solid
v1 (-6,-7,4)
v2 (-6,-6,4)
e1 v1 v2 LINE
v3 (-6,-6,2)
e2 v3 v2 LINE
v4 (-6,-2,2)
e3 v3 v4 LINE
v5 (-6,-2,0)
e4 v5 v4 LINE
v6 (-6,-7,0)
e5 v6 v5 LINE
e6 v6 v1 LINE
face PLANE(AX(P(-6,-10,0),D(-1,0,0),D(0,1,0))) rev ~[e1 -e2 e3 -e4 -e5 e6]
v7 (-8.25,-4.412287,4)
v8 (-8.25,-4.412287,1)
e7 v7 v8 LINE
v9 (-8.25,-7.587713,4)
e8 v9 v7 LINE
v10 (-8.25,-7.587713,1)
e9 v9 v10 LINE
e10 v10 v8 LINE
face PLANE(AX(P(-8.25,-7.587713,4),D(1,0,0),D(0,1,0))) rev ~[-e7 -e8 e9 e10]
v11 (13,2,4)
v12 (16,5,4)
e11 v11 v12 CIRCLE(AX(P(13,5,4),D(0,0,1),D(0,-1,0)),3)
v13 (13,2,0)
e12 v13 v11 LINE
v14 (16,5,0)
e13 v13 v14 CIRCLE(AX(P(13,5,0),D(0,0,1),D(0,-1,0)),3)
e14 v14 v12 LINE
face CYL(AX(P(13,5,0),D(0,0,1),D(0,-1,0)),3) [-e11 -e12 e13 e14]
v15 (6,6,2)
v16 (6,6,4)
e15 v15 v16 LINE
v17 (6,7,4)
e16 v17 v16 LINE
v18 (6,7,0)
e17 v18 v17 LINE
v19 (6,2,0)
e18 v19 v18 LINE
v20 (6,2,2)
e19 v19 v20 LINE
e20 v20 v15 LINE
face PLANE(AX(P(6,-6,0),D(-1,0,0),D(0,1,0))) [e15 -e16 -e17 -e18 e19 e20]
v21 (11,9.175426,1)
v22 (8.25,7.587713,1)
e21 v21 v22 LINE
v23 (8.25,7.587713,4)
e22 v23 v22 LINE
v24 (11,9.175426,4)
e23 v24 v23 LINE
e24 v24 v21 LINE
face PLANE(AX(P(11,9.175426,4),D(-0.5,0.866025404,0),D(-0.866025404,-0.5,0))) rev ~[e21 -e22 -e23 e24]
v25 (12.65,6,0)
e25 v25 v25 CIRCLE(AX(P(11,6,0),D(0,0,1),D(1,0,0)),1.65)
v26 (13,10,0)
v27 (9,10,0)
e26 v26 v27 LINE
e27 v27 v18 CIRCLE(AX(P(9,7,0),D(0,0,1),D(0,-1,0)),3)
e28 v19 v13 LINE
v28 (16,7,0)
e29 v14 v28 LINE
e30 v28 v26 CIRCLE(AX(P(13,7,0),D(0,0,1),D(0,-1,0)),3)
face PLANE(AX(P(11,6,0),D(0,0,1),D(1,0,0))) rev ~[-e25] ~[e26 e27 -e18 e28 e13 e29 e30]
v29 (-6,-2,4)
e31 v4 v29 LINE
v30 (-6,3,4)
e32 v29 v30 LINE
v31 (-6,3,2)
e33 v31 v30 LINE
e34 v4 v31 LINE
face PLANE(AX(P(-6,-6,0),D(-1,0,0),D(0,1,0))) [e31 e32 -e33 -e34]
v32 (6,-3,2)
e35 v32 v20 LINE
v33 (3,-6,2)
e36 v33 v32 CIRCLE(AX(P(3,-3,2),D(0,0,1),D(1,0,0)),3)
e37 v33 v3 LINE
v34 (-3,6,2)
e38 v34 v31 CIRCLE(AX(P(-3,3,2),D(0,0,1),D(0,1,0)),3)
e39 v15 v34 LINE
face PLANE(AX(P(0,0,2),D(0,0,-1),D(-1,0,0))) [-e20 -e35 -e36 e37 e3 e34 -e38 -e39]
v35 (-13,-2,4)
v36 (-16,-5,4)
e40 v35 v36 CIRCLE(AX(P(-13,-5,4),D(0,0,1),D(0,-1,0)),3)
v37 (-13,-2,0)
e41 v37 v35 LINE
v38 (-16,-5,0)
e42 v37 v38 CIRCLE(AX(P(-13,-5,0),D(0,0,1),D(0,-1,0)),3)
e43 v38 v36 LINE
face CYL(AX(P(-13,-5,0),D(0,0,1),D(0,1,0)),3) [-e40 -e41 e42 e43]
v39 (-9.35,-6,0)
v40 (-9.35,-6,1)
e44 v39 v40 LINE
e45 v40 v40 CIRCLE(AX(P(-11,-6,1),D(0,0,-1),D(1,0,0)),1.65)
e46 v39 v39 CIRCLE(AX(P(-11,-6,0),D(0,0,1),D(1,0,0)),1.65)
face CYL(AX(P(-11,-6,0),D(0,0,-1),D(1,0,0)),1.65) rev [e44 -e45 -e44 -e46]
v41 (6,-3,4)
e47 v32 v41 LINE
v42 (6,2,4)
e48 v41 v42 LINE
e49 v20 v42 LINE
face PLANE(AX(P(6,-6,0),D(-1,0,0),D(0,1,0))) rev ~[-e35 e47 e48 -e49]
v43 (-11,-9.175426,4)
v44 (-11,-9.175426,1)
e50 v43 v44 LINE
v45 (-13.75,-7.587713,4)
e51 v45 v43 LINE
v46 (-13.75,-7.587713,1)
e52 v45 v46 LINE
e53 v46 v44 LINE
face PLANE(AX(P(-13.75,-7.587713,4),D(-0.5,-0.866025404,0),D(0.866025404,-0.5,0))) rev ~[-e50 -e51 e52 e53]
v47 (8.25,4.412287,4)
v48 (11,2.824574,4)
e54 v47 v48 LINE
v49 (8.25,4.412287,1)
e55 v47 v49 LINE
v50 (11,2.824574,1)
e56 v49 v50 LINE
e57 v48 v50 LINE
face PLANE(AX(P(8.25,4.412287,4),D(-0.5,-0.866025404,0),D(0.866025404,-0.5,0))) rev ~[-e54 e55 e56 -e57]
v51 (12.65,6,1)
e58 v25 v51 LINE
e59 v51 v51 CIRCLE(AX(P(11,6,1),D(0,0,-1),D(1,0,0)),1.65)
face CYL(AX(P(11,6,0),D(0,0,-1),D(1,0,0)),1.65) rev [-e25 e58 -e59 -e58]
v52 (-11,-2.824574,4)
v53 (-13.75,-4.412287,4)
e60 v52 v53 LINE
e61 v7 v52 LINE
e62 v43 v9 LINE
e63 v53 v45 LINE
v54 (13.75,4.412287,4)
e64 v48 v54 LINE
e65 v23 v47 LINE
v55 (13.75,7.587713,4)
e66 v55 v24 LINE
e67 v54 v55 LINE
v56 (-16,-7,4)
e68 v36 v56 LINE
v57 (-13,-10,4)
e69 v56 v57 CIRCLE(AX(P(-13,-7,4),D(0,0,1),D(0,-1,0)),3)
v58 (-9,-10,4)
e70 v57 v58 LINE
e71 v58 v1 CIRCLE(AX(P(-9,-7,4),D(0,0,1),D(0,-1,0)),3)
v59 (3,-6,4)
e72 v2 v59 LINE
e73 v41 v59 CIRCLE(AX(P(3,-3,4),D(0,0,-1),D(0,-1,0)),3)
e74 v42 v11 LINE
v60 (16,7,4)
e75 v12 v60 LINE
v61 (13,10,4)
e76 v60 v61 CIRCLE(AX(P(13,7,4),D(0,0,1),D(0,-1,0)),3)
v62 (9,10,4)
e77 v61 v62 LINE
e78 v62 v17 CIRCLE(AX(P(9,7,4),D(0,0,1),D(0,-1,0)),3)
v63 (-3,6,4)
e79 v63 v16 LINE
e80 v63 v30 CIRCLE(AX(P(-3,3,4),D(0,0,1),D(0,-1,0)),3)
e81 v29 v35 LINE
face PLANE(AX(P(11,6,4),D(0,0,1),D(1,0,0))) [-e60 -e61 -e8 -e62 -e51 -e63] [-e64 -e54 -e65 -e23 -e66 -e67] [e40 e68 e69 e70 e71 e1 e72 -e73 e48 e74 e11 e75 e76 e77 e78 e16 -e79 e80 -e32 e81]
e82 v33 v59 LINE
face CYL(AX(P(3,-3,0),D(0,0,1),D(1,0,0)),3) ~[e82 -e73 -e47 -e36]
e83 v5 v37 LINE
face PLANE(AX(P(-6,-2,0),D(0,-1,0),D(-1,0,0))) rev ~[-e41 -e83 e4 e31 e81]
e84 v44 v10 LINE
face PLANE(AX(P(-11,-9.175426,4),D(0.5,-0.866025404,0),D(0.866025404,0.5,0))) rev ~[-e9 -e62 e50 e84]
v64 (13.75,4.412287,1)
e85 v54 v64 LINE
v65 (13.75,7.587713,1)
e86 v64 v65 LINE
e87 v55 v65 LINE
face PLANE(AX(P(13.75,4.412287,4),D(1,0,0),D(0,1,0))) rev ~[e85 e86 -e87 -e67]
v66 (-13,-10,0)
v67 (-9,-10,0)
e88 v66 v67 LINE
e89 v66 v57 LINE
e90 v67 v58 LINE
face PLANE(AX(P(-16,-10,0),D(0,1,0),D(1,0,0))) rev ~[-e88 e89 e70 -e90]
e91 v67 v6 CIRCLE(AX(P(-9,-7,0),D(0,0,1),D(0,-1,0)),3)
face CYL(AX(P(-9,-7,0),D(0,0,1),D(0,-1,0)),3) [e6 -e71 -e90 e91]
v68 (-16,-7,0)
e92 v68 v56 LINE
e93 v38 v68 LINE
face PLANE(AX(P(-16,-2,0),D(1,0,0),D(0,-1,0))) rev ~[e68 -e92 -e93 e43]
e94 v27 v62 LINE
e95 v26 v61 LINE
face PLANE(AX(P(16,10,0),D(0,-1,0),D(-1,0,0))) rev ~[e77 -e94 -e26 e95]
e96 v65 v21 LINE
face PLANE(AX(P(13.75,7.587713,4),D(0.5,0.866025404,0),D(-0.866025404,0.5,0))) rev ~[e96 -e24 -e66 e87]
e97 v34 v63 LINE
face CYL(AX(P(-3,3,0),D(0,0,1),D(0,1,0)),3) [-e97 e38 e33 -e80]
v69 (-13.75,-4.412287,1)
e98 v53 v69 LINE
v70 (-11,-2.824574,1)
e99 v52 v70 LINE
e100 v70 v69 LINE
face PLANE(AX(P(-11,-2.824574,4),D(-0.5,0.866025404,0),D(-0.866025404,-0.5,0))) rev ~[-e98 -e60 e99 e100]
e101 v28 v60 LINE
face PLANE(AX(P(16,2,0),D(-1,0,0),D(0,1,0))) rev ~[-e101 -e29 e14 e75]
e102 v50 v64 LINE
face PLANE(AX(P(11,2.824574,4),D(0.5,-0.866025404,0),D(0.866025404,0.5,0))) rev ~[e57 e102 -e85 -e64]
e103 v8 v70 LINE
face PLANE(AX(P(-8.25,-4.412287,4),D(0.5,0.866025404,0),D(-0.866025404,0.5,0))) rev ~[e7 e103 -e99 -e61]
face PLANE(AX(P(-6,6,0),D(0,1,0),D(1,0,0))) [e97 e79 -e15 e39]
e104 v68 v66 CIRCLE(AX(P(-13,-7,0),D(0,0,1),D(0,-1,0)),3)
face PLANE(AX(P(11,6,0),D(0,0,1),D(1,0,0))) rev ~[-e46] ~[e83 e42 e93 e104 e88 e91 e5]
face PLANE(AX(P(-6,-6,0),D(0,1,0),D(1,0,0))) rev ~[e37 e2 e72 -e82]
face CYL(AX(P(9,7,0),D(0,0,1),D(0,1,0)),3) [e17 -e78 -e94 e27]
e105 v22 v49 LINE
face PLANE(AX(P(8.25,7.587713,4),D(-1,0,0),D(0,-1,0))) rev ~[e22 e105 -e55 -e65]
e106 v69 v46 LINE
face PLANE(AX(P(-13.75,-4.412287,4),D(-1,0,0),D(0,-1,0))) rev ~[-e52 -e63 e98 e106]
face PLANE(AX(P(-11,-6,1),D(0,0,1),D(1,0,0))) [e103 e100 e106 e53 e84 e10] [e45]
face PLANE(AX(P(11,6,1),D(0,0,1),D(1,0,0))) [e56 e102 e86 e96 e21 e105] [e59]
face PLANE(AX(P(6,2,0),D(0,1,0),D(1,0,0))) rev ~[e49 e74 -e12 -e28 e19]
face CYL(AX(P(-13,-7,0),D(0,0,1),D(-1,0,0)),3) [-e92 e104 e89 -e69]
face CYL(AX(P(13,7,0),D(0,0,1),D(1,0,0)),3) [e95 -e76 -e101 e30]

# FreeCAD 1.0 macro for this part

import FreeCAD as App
import Part
import Sketcher
from FreeCAD import Vector
Q = App.Units.Quantity


def edges_at(feature, points):
    """Names of the edges that pass closest to the given points."""
    edges = feature.Shape.Edges
    near = lambda p: min(range(len(edges)), key=lambda i: edges[i].distToShape(Part.Vertex(*p))[0])
    return sorted({f"Edge{near(p) + 1}" for p in points})

doc = App.newDocument("Part")
params = doc.addObject("Spreadsheet::Sheet", "Params")
for row, (alias, value) in enumerate([
    ("sketch1_diameter", "3.3 mm"),
    ("sketch1_width", "12 mm"),
    ("sketch1_width2", "10 mm"),
    ("sketch1_height", "4 mm"),
    ("sketch1_height2", "8 mm"),
    ("pad1_length", "4 mm"),
    ("pocket1_length", "3 mm"),
    ("fillet_radius", "3 mm"),
    ("sketch3_width", "12 mm"),
    ("pocket2_length", "2 mm"),
], start=1):
    params.set(f"A{row}", alias)
    params.set(f"B{row}", "=" + value)
    params.setAlias(f"B{row}", alias)

body = doc.addObject("PartDesign::Body", "Body")

# Sketch on XY plane
sketch1 = body.newObject("Sketcher::SketchObject", "Sketch")
sketch1.AttachmentSupport = (doc.getObject("XY_Plane"), [""])
sketch1.MapMode = "FlatFace"
sketch1.addGeometry([
    Part.LineSegment(Vector(-6, -10, 0), Vector(-6, -6, 0)),  # 0
    Part.LineSegment(Vector(-6, -6, 0), Vector(6, -6, 0)),  # 1
    Part.LineSegment(Vector(6, -6, 0), Vector(6, 2, 0)),  # 2
    Part.LineSegment(Vector(6, 2, 0), Vector(16, 2, 0)),  # 3
    Part.LineSegment(Vector(16, 2, 0), Vector(16, 10, 0)),  # 4
    Part.LineSegment(Vector(16, 10, 0), Vector(6, 10, 0)),  # 5
    Part.LineSegment(Vector(6, 10, 0), Vector(6, 6, 0)),  # 6
    Part.LineSegment(Vector(6, 6, 0), Vector(-6, 6, 0)),  # 7
    Part.LineSegment(Vector(-6, 6, 0), Vector(-6, -2, 0)),  # 8
    Part.LineSegment(Vector(-6, -2, 0), Vector(-16, -2, 0)),  # 9
    Part.LineSegment(Vector(-16, -2, 0), Vector(-16, -10, 0)),  # 10
    Part.LineSegment(Vector(-16, -10, 0), Vector(-6, -10, 0)),  # 11
    Part.Circle(Vector(-11, -6, 0), Vector(0, 0, 1), 1.6),  # 12
    Part.Circle(Vector(11, 6, 0), Vector(0, 0, 1), 1.6),  # 13
], False)
sketch1.addConstraint([
    Sketcher.Constraint("Coincident", 0, 2, 1, 1),
    Sketcher.Constraint("Coincident", 1, 2, 2, 1),
    Sketcher.Constraint("Coincident", 2, 2, 3, 1),
    Sketcher.Constraint("Coincident", 3, 2, 4, 1),
    Sketcher.Constraint("Coincident", 4, 2, 5, 1),
    Sketcher.Constraint("Coincident", 5, 2, 6, 1),
    Sketcher.Constraint("Coincident", 6, 2, 7, 1),
    Sketcher.Constraint("Coincident", 7, 2, 8, 1),
    Sketcher.Constraint("Coincident", 8, 2, 9, 1),
    Sketcher.Constraint("Coincident", 9, 2, 10, 1),
    Sketcher.Constraint("Coincident", 10, 2, 11, 1),
    Sketcher.Constraint("Coincident", 11, 2, 0, 1),
    Sketcher.Constraint("Vertical", 0),
    Sketcher.Constraint("Horizontal", 1),
    Sketcher.Constraint("Vertical", 2),
    Sketcher.Constraint("Horizontal", 3),
    Sketcher.Constraint("Vertical", 4),
    Sketcher.Constraint("Horizontal", 5),
    Sketcher.Constraint("Vertical", 6),
    Sketcher.Constraint("Horizontal", 7),
    Sketcher.Constraint("Vertical", 8),
    Sketcher.Constraint("Horizontal", 9),
    Sketcher.Constraint("Vertical", 10),
    Sketcher.Constraint("Horizontal", 11),
    Sketcher.Constraint("Equal", 12, 13),
    Sketcher.Constraint("Symmetric", 12, 3, 13, 3, -1, 1),
    Sketcher.Constraint("Symmetric", 0, 2, 6, 2, -1, 1),
    Sketcher.Constraint("Symmetric", 2, 2, 8, 2, -1, 1),
    Sketcher.Constraint("Symmetric", 4, 2, 10, 2, -1, 1),
    Sketcher.Constraint("Horizontal", 12, 3, 0, 2),
    Sketcher.Constraint("Vertical", 2, 2, 5, 2),
    Sketcher.Constraint("Equal", 2, 4),
    Sketcher.Constraint("Diameter", 12, 3.3),
    Sketcher.Constraint("DistanceX", 1, 1, 1, 2, 12.0),
    Sketcher.Constraint("DistanceX", 3, 1, 3, 2, 10.0),
    Sketcher.Constraint("DistanceY", 0, 1, 0, 2, 4.0),
    Sketcher.Constraint("DistanceY", 2, 1, 2, 2, 8.0),
    Sketcher.Constraint("DistanceX", 12, 3, -1, 1, 11.0),
])
sketch1.setExpression("Constraints[32]", "Params.sketch1_diameter")
sketch1.setExpression("Constraints[33]", "Params.sketch1_width")
sketch1.setExpression("Constraints[34]", "Params.sketch1_width2")
sketch1.setExpression("Constraints[35]", "Params.sketch1_height")
sketch1.setExpression("Constraints[36]", "Params.sketch1_height2")
pad1 = body.newObject("PartDesign::Pad", "Pad")
pad1.Profile = sketch1
pad1.setExpression("Length", "Params.pad1_length")

# Sketch on XY plane
sketch2 = body.newObject("Sketcher::SketchObject", "Sketch001")
sketch2.AttachmentSupport = (doc.getObject("XY_Plane"), [""])
sketch2.MapMode = "FlatFace"
sketch2.AttachmentOffset = App.Placement(Vector(0, 0, 4), App.Rotation())
sketch2.addGeometry([
    Part.LineSegment(Vector(-11, -2.8, 0), Vector(-13.8, -4.4, 0)),  # 0
    Part.LineSegment(Vector(-13.8, -4.4, 0), Vector(-13.8, -7.6, 0)),  # 1
    Part.LineSegment(Vector(-13.8, -7.6, 0), Vector(-11, -9.2, 0)),  # 2
    Part.LineSegment(Vector(-11, -9.2, 0), Vector(-8.2, -7.6, 0)),  # 3
    Part.LineSegment(Vector(-8.2, -7.6, 0), Vector(-8.2, -4.4, 0)),  # 4
    Part.LineSegment(Vector(-8.2, -4.4, 0), Vector(-11, -2.8, 0)),  # 5
    Part.LineSegment(Vector(11, 2.8, 0), Vector(13.8, 4.4, 0)),  # 6
    Part.LineSegment(Vector(13.8, 4.4, 0), Vector(13.8, 7.6, 0)),  # 7
    Part.LineSegment(Vector(13.8, 7.6, 0), Vector(11, 9.2, 0)),  # 8
    Part.LineSegment(Vector(11, 9.2, 0), Vector(8.2, 7.6, 0)),  # 9
    Part.LineSegment(Vector(8.2, 7.6, 0), Vector(8.2, 4.4, 0)),  # 10
    Part.LineSegment(Vector(8.2, 4.4, 0), Vector(11, 2.8, 0)),  # 11
], False)
sketch2.addConstraint([
    Sketcher.Constraint("Coincident", 0, 2, 1, 1),
    Sketcher.Constraint("Coincident", 1, 2, 2, 1),
    Sketcher.Constraint("Coincident", 2, 2, 3, 1),
    Sketcher.Constraint("Coincident", 3, 2, 4, 1),
    Sketcher.Constraint("Coincident", 4, 2, 5, 1),
    Sketcher.Constraint("Coincident", 5, 2, 0, 1),
    Sketcher.Constraint("Coincident", 6, 2, 7, 1),
    Sketcher.Constraint("Coincident", 7, 2, 8, 1),
    Sketcher.Constraint("Coincident", 8, 2, 9, 1),
    Sketcher.Constraint("Coincident", 9, 2, 10, 1),
    Sketcher.Constraint("Coincident", 10, 2, 11, 1),
    Sketcher.Constraint("Coincident", 11, 2, 6, 1),
    Sketcher.Constraint("Vertical", 1),
    Sketcher.Constraint("Vertical", 4),
    Sketcher.Constraint("Vertical", 7),
    Sketcher.Constraint("Vertical", 10),
    Sketcher.Constraint("Symmetric", 0, 2, 6, 2, -1, 1),
    Sketcher.Constraint("Symmetric", 2, 2, 8, 2, -1, 1),
    Sketcher.Constraint("Symmetric", 3, 2, 9, 2, -1, 1),
    Sketcher.Constraint("Symmetric", 5, 2, 11, 2, -1, 1),
    Sketcher.Constraint("Parallel", 0, 3),
    Sketcher.Constraint("Parallel", 2, 5),
    Sketcher.Constraint("Parallel", 5, 8),
    Sketcher.Constraint("Parallel", 8, 11),
    Sketcher.Constraint("Horizontal", 1, 2, 3, 2),
    Sketcher.Constraint("Horizontal", 0, 2, 4, 2),
    Sketcher.Constraint("Vertical", 2, 2, 5, 2),
    Sketcher.Constraint("Angle", 0, Q("-150 deg")),
    Sketcher.Constraint("DistanceX", 2, 2, -1, 1, 11.0),
    Sketcher.Constraint("DistanceY", 3, 2, 6, 2, 12.0),
    Sketcher.Constraint("DistanceX", 1, 2, 3, 2, 5.5),
    Sketcher.Constraint("DistanceY", 1, 2, 1, 1, 3.175426),
])
pocket1 = body.newObject("PartDesign::Pocket", "Pocket")
pocket1.Profile = sketch2
pocket1.setExpression("Length", "Params.pocket1_length")
doc.recompute()

fillet = body.newObject("PartDesign::Fillet", "Fillet")
fillet.Base = (pocket1, edges_at(pocket1, [
    (-16, -2, 2),
    (-6, 6, 2),
    (6, 10, 2),
    (16, 10, 2),
    (16, 2, 2),
    (6, -6, 2),
    (-6, -10, 2),
    (-16, -10, 2),
]))
fillet.setExpression("Radius", "Params.fillet_radius")

# Sketch on XY plane
sketch3 = body.newObject("Sketcher::SketchObject", "Sketch002")
sketch3.AttachmentSupport = (doc.getObject("XY_Plane"), [""])
sketch3.MapMode = "FlatFace"
sketch3.addGeometry([
    Part.LineSegment(Vector(6, 6, 0), Vector(6, -6, 0)),
    Part.LineSegment(Vector(6, -6, 0), Vector(-6, -6, 0)),
    Part.LineSegment(Vector(-6, -6, 0), Vector(-6, 6, 0)),
    Part.LineSegment(Vector(-6, 6, 0), Vector(6, 6, 0)),
], False)
sketch3.addConstraint([
    Sketcher.Constraint("Coincident", 0, 2, 1, 1),
    Sketcher.Constraint("Coincident", 1, 2, 2, 1),
    Sketcher.Constraint("Coincident", 2, 2, 3, 1),
    Sketcher.Constraint("Coincident", 3, 2, 0, 1),
    Sketcher.Constraint("Vertical", 0),
    Sketcher.Constraint("Horizontal", 1),
    Sketcher.Constraint("Vertical", 2),
    Sketcher.Constraint("Horizontal", 3),
    Sketcher.Constraint("Symmetric", 0, 2, 2, 2, -1, 1),
    Sketcher.Constraint("Equal", 3, 0),
    Sketcher.Constraint("DistanceX", 1, 2, 1, 1, 12.0),
])
sketch3.setExpression("Constraints[10]", "Params.sketch3_width")
pocket2 = body.newObject("PartDesign::Pocket", "Pocket001")
pocket2.Profile = sketch3
pocket2.setExpression("Length", "Params.pocket2_length")
pocket2.Reversed = True

doc.recompute()
